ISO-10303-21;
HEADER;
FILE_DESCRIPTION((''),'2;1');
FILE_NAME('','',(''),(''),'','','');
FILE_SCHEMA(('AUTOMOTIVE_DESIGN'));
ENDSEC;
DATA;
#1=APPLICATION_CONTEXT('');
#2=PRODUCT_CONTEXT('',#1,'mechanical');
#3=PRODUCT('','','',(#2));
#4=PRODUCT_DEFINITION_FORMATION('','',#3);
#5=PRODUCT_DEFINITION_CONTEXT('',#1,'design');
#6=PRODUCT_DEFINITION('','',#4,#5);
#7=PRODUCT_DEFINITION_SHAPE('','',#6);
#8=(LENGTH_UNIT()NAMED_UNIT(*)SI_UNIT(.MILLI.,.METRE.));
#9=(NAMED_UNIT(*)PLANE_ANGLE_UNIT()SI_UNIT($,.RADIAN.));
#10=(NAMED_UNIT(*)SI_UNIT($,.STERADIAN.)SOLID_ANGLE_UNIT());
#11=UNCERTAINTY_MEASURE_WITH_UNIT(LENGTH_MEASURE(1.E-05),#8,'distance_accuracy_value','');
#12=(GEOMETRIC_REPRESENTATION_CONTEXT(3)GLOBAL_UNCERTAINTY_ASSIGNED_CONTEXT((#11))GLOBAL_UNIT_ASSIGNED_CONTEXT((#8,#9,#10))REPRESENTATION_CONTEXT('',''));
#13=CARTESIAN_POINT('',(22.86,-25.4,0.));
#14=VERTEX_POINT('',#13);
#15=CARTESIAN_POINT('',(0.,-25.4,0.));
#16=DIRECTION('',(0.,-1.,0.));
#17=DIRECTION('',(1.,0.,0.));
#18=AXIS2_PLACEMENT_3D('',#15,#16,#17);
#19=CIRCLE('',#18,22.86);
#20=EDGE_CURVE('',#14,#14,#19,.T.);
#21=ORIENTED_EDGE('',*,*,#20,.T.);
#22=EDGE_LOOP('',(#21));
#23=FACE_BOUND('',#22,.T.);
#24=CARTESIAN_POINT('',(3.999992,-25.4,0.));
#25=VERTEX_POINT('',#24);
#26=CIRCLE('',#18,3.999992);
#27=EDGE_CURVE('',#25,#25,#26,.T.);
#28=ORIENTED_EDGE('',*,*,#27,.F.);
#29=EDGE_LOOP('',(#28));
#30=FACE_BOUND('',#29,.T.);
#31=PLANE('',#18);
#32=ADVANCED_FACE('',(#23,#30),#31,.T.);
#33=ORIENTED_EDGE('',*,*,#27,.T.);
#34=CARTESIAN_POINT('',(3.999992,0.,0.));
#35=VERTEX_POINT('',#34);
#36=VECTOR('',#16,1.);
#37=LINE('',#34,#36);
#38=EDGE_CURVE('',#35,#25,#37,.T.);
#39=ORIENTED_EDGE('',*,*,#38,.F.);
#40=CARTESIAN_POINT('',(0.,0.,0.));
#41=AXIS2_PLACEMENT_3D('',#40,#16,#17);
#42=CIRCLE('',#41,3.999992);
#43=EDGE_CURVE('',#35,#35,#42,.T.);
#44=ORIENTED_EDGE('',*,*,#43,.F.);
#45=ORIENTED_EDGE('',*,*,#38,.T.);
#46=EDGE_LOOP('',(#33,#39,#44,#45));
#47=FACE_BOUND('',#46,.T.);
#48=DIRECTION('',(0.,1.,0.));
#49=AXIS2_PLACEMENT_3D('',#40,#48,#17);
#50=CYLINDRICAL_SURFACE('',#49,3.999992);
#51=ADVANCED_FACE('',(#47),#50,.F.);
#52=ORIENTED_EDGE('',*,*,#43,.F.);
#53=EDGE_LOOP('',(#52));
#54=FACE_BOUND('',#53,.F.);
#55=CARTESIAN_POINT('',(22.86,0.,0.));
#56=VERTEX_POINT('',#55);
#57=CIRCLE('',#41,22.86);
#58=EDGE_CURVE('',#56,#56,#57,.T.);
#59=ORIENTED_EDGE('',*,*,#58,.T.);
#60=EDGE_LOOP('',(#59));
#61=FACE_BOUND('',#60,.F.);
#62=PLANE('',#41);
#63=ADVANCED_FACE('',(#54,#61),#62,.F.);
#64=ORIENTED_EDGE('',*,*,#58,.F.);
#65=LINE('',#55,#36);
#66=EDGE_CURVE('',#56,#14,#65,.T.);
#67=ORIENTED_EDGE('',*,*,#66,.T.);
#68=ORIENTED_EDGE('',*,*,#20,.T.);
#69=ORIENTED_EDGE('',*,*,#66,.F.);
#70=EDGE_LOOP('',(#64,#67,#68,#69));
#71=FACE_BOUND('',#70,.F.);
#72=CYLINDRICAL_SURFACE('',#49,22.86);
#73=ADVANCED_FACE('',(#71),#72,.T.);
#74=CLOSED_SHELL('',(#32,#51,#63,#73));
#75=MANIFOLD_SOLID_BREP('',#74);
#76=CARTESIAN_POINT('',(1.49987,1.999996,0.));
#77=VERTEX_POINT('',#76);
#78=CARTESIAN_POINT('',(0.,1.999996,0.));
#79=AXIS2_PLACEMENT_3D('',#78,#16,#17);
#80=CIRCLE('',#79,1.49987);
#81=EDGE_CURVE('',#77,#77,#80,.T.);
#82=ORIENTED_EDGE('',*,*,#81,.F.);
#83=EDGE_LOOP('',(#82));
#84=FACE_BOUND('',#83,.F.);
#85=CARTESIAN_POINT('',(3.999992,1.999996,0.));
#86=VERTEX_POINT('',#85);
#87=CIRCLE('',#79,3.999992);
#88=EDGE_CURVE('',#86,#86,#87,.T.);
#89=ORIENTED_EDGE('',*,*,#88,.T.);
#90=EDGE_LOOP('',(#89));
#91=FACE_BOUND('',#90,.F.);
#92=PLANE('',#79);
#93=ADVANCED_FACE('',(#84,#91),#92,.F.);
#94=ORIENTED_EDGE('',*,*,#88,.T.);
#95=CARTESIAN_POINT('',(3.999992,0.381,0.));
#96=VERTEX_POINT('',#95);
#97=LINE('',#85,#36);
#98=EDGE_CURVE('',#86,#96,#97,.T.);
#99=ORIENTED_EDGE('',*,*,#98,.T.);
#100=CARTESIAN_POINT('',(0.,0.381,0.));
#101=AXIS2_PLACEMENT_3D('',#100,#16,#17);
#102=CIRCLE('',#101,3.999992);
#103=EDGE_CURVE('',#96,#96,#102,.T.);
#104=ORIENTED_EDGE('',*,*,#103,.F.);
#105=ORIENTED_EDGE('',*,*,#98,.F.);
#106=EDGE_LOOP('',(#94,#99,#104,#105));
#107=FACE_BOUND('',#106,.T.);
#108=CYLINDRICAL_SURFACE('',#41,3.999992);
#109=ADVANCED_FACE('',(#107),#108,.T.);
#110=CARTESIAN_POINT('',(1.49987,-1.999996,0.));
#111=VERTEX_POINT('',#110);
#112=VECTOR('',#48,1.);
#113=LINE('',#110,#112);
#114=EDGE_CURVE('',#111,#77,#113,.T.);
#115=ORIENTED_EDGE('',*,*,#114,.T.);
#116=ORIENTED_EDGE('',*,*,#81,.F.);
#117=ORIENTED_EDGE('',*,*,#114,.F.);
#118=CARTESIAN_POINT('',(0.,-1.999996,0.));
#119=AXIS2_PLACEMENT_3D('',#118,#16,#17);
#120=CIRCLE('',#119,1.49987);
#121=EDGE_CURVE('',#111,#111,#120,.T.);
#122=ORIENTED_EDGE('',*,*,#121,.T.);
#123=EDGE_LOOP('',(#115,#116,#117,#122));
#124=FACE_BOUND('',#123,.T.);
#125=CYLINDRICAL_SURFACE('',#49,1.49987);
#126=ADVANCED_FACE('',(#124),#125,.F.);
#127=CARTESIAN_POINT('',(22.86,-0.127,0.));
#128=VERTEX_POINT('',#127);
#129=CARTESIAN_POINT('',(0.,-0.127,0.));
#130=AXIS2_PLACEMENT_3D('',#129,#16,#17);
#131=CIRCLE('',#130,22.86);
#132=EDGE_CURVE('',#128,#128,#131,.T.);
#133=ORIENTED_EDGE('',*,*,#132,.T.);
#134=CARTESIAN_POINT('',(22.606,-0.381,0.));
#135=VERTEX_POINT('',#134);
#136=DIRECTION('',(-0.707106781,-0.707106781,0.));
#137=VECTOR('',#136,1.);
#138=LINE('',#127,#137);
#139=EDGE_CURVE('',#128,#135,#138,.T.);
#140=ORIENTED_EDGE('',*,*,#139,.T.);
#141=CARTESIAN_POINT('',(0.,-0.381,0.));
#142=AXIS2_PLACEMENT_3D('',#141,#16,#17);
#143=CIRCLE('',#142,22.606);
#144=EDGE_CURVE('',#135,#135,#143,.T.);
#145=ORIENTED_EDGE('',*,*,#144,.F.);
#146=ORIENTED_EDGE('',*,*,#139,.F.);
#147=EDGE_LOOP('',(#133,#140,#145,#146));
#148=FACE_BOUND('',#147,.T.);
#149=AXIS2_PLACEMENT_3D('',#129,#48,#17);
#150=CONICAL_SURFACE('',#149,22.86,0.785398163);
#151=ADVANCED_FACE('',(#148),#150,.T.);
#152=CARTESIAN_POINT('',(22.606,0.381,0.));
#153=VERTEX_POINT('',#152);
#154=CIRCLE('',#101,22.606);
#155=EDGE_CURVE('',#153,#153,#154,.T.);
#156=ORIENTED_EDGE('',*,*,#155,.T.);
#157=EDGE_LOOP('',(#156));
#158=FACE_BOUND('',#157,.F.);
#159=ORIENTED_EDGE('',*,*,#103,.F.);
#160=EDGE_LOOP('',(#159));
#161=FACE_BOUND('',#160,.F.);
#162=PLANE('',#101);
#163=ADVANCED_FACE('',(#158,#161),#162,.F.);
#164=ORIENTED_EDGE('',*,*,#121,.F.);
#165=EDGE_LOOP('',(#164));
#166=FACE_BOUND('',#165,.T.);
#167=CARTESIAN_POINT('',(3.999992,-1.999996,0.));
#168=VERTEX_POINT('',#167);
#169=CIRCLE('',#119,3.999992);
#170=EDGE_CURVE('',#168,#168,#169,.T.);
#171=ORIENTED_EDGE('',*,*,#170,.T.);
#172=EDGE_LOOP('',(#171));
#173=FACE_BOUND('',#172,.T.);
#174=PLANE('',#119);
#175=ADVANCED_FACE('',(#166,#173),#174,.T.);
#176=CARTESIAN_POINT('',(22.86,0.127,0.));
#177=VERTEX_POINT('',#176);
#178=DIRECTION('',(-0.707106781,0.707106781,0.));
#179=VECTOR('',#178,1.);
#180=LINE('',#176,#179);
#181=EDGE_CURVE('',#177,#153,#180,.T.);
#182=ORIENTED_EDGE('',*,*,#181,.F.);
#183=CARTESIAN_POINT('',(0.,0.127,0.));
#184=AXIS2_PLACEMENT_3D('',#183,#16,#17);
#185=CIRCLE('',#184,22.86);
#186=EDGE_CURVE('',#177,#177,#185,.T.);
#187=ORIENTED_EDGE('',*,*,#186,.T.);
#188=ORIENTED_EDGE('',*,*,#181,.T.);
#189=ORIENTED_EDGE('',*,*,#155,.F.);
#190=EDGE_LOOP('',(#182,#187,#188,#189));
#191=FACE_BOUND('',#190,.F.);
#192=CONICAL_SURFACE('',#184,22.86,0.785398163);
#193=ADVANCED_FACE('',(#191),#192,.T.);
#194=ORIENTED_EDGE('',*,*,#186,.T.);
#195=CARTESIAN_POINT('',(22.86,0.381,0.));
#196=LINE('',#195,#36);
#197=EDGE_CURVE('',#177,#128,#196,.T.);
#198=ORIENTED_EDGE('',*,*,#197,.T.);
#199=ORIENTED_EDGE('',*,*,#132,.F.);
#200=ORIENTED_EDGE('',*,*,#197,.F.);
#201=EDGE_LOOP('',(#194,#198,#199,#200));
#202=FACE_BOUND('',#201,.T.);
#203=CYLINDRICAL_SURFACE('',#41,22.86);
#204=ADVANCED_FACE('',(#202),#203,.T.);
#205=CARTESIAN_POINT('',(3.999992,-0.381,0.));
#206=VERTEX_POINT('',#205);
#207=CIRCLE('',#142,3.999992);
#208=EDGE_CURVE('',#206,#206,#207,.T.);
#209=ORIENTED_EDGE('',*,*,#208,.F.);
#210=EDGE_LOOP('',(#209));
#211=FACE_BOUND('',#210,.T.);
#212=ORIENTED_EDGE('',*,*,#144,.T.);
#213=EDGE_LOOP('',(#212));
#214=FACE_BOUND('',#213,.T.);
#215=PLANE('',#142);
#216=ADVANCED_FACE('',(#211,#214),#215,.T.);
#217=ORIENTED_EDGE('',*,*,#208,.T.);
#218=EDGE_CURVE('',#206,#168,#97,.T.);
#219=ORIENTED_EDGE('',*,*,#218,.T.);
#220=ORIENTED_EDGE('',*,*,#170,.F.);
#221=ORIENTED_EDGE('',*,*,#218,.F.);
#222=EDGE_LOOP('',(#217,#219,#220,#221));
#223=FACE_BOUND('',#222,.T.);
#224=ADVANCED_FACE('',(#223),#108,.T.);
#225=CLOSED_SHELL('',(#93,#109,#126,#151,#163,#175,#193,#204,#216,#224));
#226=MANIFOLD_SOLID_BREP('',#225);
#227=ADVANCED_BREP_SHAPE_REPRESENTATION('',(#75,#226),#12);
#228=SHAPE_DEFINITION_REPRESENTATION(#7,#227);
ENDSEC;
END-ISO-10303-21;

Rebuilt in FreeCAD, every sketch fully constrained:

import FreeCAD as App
import Part
import Sketcher
from FreeCAD import Vector
Q = App.Units.Quantity


def edges_at(feature, points):
    """Names of the edges that pass closest to the given points."""
    edges = feature.Shape.Edges
    near = lambda p: min(range(len(edges)), key=lambda i: edges[i].distToShape(Part.Vertex(*p))[0])
    return sorted({f"Edge{near(p) + 1}" for p in points})

doc = App.newDocument("Part")
body = doc.addObject("PartDesign::Body", "Body")

sketch1 = body.newObject("Sketcher::SketchObject", "Sketch")
sketch1.AttachmentSupport = (doc.getObject("XZ_Plane"), [""])
sketch1.MapMode = "FlatFace"
sketch1.addGeometry(Part.Circle(Vector(0, 0, 0), Vector(0, 0, 1), 22.9), False)
sketch1.addGeometry(Part.Circle(Vector(0, 0, 0), Vector(0, 0, 1), 4), False)
sketch1.addConstraint(Sketcher.Constraint("Coincident", 0, 3, -1, 1))
sketch1.addConstraint(Sketcher.Constraint("Coincident", 1, 3, -1, 1))
sketch1.addConstraint(Sketcher.Constraint("Diameter", 0, Q("1.8 in")))
sketch1.addConstraint(Sketcher.Constraint("Diameter", 1, Q("7.999984 mm")))
pad1 = body.newObject("PartDesign::Pad", "Pad")
pad1.Profile = sketch1
pad1.Length = Q("0.03 in")
pad1.Midplane = True
doc.recompute()

chamfer = body.newObject("PartDesign::Chamfer", "Chamfer")
chamfer.Base = (pad1, edges_at(pad1, [(-22.86, -0.381, 0), (-22.86, 0.381, 0)]))
chamfer.Size = Q("0.01 in")

sketch2 = body.newObject("Sketcher::SketchObject", "Sketch001")
sketch2.AttachmentSupport = (doc.getObject("XZ_Plane"), [""])
sketch2.MapMode = "FlatFace"
sketch2.addGeometry(Part.Circle(Vector(0, 0, 0), Vector(0, 0, 1), 4), False)
sketch2.addGeometry(Part.Circle(Vector(0, 0, 0), Vector(0, 0, 1), 1.5), False)
sketch2.addConstraint(Sketcher.Constraint("Coincident", 0, 3, -1, 1))
sketch2.addConstraint(Sketcher.Constraint("Coincident", 1, 3, -1, 1))
sketch2.addConstraint(Sketcher.Constraint("Diameter", 1, Q("0.1181 in")))
sketch2.addConstraint(Sketcher.Constraint("Diameter", 0, Q("7.999984 mm")))
pad2 = body.newObject("PartDesign::Pad", "Pad001")
pad2.Profile = sketch2
pad2.Length = 3.999992
pad2.Midplane = True
body2 = doc.addObject("PartDesign::Body", "Body001")

sketch3 = body2.newObject("Sketcher::SketchObject", "Sketch002")
sketch3.AttachmentSupport = (doc.getObject("XZ_Plane001"), [""])
sketch3.MapMode = "FlatFace"
sketch3.addGeometry(Part.Circle(Vector(0, 0, 0), Vector(0, 0, 1), 22.9), False)
sketch3.addGeometry(Part.Circle(Vector(0, 0, 0), Vector(0, 0, 1), 4), False)
sketch3.addConstraint(Sketcher.Constraint("Coincident", 0, 3, -1, 1))
sketch3.addConstraint(Sketcher.Constraint("Coincident", 1, 3, -1, 1))
sketch3.addConstraint(Sketcher.Constraint("Diameter", 0, Q("1.8 in")))
sketch3.addConstraint(Sketcher.Constraint("Diameter", 1, Q("7.999984 mm")))
pad3 = body2.newObject("PartDesign::Pad", "Pad002")
pad3.Profile = sketch3
pad3.Length = Q("1 in")

doc.recompute()
